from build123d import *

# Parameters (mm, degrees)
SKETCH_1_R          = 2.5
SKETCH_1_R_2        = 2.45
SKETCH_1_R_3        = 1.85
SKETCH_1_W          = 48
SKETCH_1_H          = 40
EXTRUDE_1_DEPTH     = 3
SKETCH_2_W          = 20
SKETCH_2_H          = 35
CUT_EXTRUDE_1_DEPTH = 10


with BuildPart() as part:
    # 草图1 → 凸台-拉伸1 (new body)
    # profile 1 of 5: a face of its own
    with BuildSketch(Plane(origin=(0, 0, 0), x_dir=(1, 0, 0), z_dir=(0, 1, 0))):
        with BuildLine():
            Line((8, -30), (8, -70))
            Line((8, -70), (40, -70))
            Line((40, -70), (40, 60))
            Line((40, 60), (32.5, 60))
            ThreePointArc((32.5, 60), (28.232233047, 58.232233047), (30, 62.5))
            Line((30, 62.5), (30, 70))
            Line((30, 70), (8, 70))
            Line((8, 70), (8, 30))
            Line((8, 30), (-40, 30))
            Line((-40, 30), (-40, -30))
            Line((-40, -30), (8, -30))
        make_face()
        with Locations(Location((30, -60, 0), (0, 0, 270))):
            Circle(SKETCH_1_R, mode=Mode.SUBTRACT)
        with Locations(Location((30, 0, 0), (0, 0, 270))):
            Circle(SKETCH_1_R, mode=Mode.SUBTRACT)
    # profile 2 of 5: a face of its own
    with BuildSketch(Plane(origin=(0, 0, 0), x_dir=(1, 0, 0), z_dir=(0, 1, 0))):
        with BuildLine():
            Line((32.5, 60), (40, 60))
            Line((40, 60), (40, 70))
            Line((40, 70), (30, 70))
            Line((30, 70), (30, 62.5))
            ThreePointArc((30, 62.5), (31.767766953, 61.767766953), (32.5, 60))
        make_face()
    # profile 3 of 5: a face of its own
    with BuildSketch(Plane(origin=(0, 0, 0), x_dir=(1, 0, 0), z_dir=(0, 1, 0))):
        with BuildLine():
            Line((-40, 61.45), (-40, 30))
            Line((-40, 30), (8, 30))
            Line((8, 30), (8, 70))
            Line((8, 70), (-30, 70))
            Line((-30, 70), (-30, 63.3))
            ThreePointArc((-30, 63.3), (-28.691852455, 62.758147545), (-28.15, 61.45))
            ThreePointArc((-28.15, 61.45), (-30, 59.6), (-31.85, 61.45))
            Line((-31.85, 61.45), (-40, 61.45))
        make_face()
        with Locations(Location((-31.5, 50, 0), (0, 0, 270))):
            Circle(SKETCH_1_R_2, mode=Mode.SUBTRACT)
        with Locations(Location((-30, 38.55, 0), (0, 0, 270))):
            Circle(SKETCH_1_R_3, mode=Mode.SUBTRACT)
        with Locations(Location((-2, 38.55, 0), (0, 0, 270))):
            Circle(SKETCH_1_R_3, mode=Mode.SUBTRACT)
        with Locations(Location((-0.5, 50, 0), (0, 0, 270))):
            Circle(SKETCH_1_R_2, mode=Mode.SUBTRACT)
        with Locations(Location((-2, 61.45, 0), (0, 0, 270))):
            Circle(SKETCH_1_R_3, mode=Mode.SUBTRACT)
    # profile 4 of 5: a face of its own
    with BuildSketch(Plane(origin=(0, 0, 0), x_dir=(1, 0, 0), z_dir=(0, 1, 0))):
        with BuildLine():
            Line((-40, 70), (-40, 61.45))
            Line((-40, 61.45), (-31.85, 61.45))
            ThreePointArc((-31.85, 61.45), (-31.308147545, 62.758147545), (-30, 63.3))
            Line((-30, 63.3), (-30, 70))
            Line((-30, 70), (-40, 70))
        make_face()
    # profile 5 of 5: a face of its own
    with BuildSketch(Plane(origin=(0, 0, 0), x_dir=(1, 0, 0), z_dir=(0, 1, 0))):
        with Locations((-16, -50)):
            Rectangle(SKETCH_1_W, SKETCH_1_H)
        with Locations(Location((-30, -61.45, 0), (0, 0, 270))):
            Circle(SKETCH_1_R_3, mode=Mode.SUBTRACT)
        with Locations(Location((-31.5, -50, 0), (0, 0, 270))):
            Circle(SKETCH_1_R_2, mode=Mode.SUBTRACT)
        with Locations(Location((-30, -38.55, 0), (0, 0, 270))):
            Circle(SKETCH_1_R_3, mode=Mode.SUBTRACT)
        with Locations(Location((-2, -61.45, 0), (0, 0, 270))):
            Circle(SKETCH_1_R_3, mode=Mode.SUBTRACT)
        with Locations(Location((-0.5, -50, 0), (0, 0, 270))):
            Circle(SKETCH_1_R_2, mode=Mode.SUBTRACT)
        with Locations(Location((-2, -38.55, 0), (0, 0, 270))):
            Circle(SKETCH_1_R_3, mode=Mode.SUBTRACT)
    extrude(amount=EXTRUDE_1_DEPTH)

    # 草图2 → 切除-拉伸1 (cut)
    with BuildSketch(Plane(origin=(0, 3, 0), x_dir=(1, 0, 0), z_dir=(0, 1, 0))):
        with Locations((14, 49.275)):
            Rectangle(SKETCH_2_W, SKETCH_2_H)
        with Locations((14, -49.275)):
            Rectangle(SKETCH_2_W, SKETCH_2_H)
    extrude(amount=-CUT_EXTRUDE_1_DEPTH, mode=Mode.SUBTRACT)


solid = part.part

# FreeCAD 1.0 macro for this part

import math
import FreeCAD as App
import Part
import Sketcher
Q = App.Units.Quantity

doc = App.newDocument("Part")
body = doc.addObject("PartDesign::Body", "Body")

# Sketch on XZ plane
sketch1 = body.newObject("Sketcher::SketchObject", "Sketch")
sketch1.AttachmentSupport = (doc.getObject("XZ_Plane"), [""])
sketch1.MapMode = "FlatFace"
sketch1.addGeometry([
    Part.LineSegment(App.Vector(40, 70, 0), App.Vector(40, -70, 0)),  # 0
    Part.LineSegment(App.Vector(40, -70, 0), App.Vector(-40, -70, 0)),  # 1
    Part.LineSegment(App.Vector(-40, -70, 0), App.Vector(-40, 70, 0)),  # 2
    Part.LineSegment(App.Vector(-40, 70, 0), App.Vector(40, 70, 0)),  # 3
    Part.ArcOfCircle(Part.Circle(App.Vector(30, -60, 0), App.Vector(0, 0, 1), 2.5), math.radians(0), math.radians(270)),  # 4
    Part.ArcOfCircle(Part.Circle(App.Vector(30, -60, 0), App.Vector(0, 0, 1), 2.5), math.radians(-90), math.radians(0)),  # 5
    Part.Circle(App.Vector(30, 60, 0), App.Vector(0, 0, 1), 2.5),  # 6
    Part.Circle(App.Vector(30, 0, 0), App.Vector(0, 0, 1), 2.5),  # 7
    Part.Circle(App.Vector(-0.5, 50, 0), App.Vector(0, 0, 1), 2.45),  # 8
    Part.Circle(App.Vector(-2, 38.55, 0), App.Vector(0, 0, 1), 1.85),  # 9
    Part.Circle(App.Vector(-30, 61.45, 0), App.Vector(0, 0, 1), 1.85),  # 10
    Part.Circle(App.Vector(-2, 61.45, 0), App.Vector(0, 0, 1), 1.85),  # 11
    Part.Circle(App.Vector(-31.5, 50, 0), App.Vector(0, 0, 1), 2.45),  # 12
    Part.Circle(App.Vector(-30, 38.55, 0), App.Vector(0, 0, 1), 1.85),  # 13
    Part.Circle(App.Vector(-2, -61.45, 0), App.Vector(0, 0, 1), 1.85),  # 14
    Part.ArcOfCircle(Part.Circle(App.Vector(-30, -61.45, 0), App.Vector(0, 0, 1), 1.85), math.radians(0), math.radians(180)),  # 15
    Part.ArcOfCircle(Part.Circle(App.Vector(-30, -61.45, 0), App.Vector(0, 0, 1), 1.85), math.radians(-180), math.radians(-90)),  # 16
    Part.ArcOfCircle(Part.Circle(App.Vector(-30, -61.45, 0), App.Vector(0, 0, 1), 1.85), math.radians(-90), math.radians(0)),  # 17
    Part.Circle(App.Vector(-0.5, -50, 0), App.Vector(0, 0, 1), 2.45),  # 18
    Part.Circle(App.Vector(-30, -38.55, 0), App.Vector(0, 0, 1), 1.85),  # 19
    Part.Circle(App.Vector(-2, -38.55, 0), App.Vector(0, 0, 1), 1.85),  # 20
    Part.Circle(App.Vector(-31.5, -50, 0), App.Vector(0, 0, 1), 2.45),  # 21
], False)
sketch1.addConstraint([
    Sketcher.Constraint("Coincident", 0, 2, 1, 1),
    Sketcher.Constraint("Coincident", 1, 2, 2, 1),
    Sketcher.Constraint("Coincident", 2, 2, 3, 1),
    Sketcher.Constraint("Coincident", 3, 2, 0, 1),
    Sketcher.Constraint("Tangent", 4, 1, 5, 2),
    Sketcher.Constraint("Coincident", 5, 1, 4, 2),
    Sketcher.Constraint("Tangent", 15, 2, 16, 1),
    Sketcher.Constraint("Tangent", 16, 2, 17, 1),
    Sketcher.Constraint("Tangent", 17, 2, 15, 1),
    Sketcher.Constraint("Vertical", 0),
    Sketcher.Constraint("Horizontal", 1),
    Sketcher.Constraint("Vertical", 2),
    Sketcher.Constraint("Horizontal", 3),
    Sketcher.Constraint("Equal", 5, 6),
    Sketcher.Constraint("Equal", 6, 7),
    Sketcher.Constraint("Equal", 9, 10),
    Sketcher.Constraint("Equal", 10, 11),
    Sketcher.Constraint("Equal", 8, 12),
    Sketcher.Constraint("Equal", 11, 13),
    Sketcher.Constraint("Equal", 13, 14),
    Sketcher.Constraint("Equal", 14, 15),
    Sketcher.Constraint("Equal", 12, 18),
    Sketcher.Constraint("Equal", 17, 19),
    Sketcher.Constraint("Equal", 19, 20),
    Sketcher.Constraint("Equal", 18, 21),
    Sketcher.Constraint("Symmetric", 0, 2, 2, 2, -1, 1),
    Sketcher.Constraint("Symmetric", 4, 3, 6, 3, -1),
    Sketcher.Constraint("Symmetric", 11, 3, 14, 3, -1),
    Sketcher.Constraint("Symmetric", 10, 3, 15, 3, -1),
    Sketcher.Constraint("Symmetric", 8, 3, 18, 3, -1),
    Sketcher.Constraint("Symmetric", 13, 3, 19, 3, -1),
    Sketcher.Constraint("Symmetric", 9, 3, 20, 3, -1),
    Sketcher.Constraint("Symmetric", 12, 3, 21, 3, -1),
    Sketcher.Constraint("PointOnObject", 7, 3, -1),
    Sketcher.Constraint("Horizontal", 10, 3, 11, 3),
    Sketcher.Constraint("Horizontal", 8, 3, 12, 3),
    Sketcher.Constraint("Horizontal", 9, 3, 13, 3),
    Sketcher.Constraint("Horizontal", 5, 3, 4, 1),
    Sketcher.Constraint("Horizontal", 17, 3, 15, 2),
    Sketcher.Constraint("Horizontal", 15, 2, 17, 2),
    Sketcher.Constraint("Vertical", 6, 3, 7, 3),
    Sketcher.Constraint("Vertical", 9, 3, 11, 3),
    Sketcher.Constraint("Vertical", 10, 3, 13, 3),
    Sketcher.Constraint("Vertical", 7, 3, 5, 1),
    Sketcher.Constraint("Vertical", 19, 3, 16, 2),
    Sketcher.Constraint("Diameter", 6, Q("5 mm")),
    Sketcher.Constraint("Diameter", 8, Q("4.9 mm")),
    Sketcher.Constraint("Diameter", 9, Q("3.7 mm")),
    Sketcher.Constraint("DistanceX", 1, 2, 1, 1, Q("80 mm")),
    Sketcher.Constraint("DistanceY", 0, 2, 0, 1, Q("140 mm")),
    Sketcher.Constraint("DistanceX", -1, 1, 4, 3, Q("30 mm")),
    Sketcher.Constraint("DistanceY", 4, 3, -1, 1, Q("60 mm")),
    Sketcher.Constraint("DistanceY", -1, 1, 8, 3, Q("50 mm")),
    Sketcher.Constraint("DistanceX", 9, 3, -1, 1, Q("2 mm")),
    Sketcher.Constraint("DistanceX", 10, 3, -1, 1, Q("30 mm")),
    Sketcher.Constraint("DistanceX", 12, 3, 8, 3, Q("31 mm")),
    Sketcher.Constraint("DistanceY", 14, 3, 9, 3, Q("100 mm")),
    Sketcher.Constraint("DistanceX", 18, 3, 4, 1, Q("33 mm")),
    Sketcher.Constraint("DistanceY", 16, 2, -1, 1, Q("63.3 mm")),
])
pad1 = body.newObject("PartDesign::Pad", "Pad")
pad1.Profile = sketch1
pad1.Length = 3
pad1.Reversed = True

# Sketch on XZ plane
sketch2 = body.newObject("Sketcher::SketchObject", "Sketch001")
sketch2.AttachmentSupport = (doc.getObject("XZ_Plane"), [""])
sketch2.MapMode = "FlatFace"
sketch2.AttachmentOffset = App.Placement(App.Vector(0, 0, -3), App.Rotation())
sketch2.addGeometry([
    Part.LineSegment(App.Vector(4, -66.775, 0), App.Vector(4, -31.775, 0)),  # 0
    Part.LineSegment(App.Vector(4, -31.775, 0), App.Vector(24, -31.775, 0)),  # 1
    Part.LineSegment(App.Vector(24, -31.775, 0), App.Vector(24, -66.775, 0)),  # 2
    Part.LineSegment(App.Vector(24, -66.775, 0), App.Vector(4, -66.775, 0)),  # 3
    Part.LineSegment(App.Vector(4, 31.775, 0), App.Vector(4, 66.775, 0)),  # 4
    Part.LineSegment(App.Vector(4, 66.775, 0), App.Vector(24, 66.775, 0)),  # 5
    Part.LineSegment(App.Vector(24, 66.775, 0), App.Vector(24, 31.775, 0)),  # 6
    Part.LineSegment(App.Vector(24, 31.775, 0), App.Vector(4, 31.775, 0)),  # 7
], False)
sketch2.addConstraint([
    Sketcher.Constraint("Coincident", 0, 2, 1, 1),
    Sketcher.Constraint("Coincident", 1, 2, 2, 1),
    Sketcher.Constraint("Coincident", 2, 2, 3, 1),
    Sketcher.Constraint("Coincident", 3, 2, 0, 1),
    Sketcher.Constraint("Coincident", 4, 2, 5, 1),
    Sketcher.Constraint("Coincident", 5, 2, 6, 1),
    Sketcher.Constraint("Coincident", 6, 2, 7, 1),
    Sketcher.Constraint("Coincident", 7, 2, 4, 1),
    Sketcher.Constraint("Vertical", 0),
    Sketcher.Constraint("Horizontal", 1),
    Sketcher.Constraint("Vertical", 2),
    Sketcher.Constraint("Horizontal", 3),
    Sketcher.Constraint("Vertical", 4),
    Sketcher.Constraint("Horizontal", 5),
    Sketcher.Constraint("Vertical", 6),
    Sketcher.Constraint("Horizontal", 7),
    Sketcher.Constraint("Symmetric", 3, 2, 4, 2, -1),
    Sketcher.Constraint("Symmetric", 1, 2, 6, 2, -1),
    Sketcher.Constraint("DistanceX", 1, 1, 1, 2, Q("20 mm")),
    Sketcher.Constraint("DistanceY", 0, 1, 0, 2, Q("35 mm")),
    Sketcher.Constraint("DistanceX", -1, 1, 0, 2, Q("4 mm")),
    Sketcher.Constraint("DistanceY", 0, 2, 4, 2, Q("98.55 mm")),
])
pocket1 = body.newObject("PartDesign::Pocket", "Pocket")
pocket1.Profile = sketch2
pocket1.Length = 10
pocket1.Reversed = True

doc.recompute()
